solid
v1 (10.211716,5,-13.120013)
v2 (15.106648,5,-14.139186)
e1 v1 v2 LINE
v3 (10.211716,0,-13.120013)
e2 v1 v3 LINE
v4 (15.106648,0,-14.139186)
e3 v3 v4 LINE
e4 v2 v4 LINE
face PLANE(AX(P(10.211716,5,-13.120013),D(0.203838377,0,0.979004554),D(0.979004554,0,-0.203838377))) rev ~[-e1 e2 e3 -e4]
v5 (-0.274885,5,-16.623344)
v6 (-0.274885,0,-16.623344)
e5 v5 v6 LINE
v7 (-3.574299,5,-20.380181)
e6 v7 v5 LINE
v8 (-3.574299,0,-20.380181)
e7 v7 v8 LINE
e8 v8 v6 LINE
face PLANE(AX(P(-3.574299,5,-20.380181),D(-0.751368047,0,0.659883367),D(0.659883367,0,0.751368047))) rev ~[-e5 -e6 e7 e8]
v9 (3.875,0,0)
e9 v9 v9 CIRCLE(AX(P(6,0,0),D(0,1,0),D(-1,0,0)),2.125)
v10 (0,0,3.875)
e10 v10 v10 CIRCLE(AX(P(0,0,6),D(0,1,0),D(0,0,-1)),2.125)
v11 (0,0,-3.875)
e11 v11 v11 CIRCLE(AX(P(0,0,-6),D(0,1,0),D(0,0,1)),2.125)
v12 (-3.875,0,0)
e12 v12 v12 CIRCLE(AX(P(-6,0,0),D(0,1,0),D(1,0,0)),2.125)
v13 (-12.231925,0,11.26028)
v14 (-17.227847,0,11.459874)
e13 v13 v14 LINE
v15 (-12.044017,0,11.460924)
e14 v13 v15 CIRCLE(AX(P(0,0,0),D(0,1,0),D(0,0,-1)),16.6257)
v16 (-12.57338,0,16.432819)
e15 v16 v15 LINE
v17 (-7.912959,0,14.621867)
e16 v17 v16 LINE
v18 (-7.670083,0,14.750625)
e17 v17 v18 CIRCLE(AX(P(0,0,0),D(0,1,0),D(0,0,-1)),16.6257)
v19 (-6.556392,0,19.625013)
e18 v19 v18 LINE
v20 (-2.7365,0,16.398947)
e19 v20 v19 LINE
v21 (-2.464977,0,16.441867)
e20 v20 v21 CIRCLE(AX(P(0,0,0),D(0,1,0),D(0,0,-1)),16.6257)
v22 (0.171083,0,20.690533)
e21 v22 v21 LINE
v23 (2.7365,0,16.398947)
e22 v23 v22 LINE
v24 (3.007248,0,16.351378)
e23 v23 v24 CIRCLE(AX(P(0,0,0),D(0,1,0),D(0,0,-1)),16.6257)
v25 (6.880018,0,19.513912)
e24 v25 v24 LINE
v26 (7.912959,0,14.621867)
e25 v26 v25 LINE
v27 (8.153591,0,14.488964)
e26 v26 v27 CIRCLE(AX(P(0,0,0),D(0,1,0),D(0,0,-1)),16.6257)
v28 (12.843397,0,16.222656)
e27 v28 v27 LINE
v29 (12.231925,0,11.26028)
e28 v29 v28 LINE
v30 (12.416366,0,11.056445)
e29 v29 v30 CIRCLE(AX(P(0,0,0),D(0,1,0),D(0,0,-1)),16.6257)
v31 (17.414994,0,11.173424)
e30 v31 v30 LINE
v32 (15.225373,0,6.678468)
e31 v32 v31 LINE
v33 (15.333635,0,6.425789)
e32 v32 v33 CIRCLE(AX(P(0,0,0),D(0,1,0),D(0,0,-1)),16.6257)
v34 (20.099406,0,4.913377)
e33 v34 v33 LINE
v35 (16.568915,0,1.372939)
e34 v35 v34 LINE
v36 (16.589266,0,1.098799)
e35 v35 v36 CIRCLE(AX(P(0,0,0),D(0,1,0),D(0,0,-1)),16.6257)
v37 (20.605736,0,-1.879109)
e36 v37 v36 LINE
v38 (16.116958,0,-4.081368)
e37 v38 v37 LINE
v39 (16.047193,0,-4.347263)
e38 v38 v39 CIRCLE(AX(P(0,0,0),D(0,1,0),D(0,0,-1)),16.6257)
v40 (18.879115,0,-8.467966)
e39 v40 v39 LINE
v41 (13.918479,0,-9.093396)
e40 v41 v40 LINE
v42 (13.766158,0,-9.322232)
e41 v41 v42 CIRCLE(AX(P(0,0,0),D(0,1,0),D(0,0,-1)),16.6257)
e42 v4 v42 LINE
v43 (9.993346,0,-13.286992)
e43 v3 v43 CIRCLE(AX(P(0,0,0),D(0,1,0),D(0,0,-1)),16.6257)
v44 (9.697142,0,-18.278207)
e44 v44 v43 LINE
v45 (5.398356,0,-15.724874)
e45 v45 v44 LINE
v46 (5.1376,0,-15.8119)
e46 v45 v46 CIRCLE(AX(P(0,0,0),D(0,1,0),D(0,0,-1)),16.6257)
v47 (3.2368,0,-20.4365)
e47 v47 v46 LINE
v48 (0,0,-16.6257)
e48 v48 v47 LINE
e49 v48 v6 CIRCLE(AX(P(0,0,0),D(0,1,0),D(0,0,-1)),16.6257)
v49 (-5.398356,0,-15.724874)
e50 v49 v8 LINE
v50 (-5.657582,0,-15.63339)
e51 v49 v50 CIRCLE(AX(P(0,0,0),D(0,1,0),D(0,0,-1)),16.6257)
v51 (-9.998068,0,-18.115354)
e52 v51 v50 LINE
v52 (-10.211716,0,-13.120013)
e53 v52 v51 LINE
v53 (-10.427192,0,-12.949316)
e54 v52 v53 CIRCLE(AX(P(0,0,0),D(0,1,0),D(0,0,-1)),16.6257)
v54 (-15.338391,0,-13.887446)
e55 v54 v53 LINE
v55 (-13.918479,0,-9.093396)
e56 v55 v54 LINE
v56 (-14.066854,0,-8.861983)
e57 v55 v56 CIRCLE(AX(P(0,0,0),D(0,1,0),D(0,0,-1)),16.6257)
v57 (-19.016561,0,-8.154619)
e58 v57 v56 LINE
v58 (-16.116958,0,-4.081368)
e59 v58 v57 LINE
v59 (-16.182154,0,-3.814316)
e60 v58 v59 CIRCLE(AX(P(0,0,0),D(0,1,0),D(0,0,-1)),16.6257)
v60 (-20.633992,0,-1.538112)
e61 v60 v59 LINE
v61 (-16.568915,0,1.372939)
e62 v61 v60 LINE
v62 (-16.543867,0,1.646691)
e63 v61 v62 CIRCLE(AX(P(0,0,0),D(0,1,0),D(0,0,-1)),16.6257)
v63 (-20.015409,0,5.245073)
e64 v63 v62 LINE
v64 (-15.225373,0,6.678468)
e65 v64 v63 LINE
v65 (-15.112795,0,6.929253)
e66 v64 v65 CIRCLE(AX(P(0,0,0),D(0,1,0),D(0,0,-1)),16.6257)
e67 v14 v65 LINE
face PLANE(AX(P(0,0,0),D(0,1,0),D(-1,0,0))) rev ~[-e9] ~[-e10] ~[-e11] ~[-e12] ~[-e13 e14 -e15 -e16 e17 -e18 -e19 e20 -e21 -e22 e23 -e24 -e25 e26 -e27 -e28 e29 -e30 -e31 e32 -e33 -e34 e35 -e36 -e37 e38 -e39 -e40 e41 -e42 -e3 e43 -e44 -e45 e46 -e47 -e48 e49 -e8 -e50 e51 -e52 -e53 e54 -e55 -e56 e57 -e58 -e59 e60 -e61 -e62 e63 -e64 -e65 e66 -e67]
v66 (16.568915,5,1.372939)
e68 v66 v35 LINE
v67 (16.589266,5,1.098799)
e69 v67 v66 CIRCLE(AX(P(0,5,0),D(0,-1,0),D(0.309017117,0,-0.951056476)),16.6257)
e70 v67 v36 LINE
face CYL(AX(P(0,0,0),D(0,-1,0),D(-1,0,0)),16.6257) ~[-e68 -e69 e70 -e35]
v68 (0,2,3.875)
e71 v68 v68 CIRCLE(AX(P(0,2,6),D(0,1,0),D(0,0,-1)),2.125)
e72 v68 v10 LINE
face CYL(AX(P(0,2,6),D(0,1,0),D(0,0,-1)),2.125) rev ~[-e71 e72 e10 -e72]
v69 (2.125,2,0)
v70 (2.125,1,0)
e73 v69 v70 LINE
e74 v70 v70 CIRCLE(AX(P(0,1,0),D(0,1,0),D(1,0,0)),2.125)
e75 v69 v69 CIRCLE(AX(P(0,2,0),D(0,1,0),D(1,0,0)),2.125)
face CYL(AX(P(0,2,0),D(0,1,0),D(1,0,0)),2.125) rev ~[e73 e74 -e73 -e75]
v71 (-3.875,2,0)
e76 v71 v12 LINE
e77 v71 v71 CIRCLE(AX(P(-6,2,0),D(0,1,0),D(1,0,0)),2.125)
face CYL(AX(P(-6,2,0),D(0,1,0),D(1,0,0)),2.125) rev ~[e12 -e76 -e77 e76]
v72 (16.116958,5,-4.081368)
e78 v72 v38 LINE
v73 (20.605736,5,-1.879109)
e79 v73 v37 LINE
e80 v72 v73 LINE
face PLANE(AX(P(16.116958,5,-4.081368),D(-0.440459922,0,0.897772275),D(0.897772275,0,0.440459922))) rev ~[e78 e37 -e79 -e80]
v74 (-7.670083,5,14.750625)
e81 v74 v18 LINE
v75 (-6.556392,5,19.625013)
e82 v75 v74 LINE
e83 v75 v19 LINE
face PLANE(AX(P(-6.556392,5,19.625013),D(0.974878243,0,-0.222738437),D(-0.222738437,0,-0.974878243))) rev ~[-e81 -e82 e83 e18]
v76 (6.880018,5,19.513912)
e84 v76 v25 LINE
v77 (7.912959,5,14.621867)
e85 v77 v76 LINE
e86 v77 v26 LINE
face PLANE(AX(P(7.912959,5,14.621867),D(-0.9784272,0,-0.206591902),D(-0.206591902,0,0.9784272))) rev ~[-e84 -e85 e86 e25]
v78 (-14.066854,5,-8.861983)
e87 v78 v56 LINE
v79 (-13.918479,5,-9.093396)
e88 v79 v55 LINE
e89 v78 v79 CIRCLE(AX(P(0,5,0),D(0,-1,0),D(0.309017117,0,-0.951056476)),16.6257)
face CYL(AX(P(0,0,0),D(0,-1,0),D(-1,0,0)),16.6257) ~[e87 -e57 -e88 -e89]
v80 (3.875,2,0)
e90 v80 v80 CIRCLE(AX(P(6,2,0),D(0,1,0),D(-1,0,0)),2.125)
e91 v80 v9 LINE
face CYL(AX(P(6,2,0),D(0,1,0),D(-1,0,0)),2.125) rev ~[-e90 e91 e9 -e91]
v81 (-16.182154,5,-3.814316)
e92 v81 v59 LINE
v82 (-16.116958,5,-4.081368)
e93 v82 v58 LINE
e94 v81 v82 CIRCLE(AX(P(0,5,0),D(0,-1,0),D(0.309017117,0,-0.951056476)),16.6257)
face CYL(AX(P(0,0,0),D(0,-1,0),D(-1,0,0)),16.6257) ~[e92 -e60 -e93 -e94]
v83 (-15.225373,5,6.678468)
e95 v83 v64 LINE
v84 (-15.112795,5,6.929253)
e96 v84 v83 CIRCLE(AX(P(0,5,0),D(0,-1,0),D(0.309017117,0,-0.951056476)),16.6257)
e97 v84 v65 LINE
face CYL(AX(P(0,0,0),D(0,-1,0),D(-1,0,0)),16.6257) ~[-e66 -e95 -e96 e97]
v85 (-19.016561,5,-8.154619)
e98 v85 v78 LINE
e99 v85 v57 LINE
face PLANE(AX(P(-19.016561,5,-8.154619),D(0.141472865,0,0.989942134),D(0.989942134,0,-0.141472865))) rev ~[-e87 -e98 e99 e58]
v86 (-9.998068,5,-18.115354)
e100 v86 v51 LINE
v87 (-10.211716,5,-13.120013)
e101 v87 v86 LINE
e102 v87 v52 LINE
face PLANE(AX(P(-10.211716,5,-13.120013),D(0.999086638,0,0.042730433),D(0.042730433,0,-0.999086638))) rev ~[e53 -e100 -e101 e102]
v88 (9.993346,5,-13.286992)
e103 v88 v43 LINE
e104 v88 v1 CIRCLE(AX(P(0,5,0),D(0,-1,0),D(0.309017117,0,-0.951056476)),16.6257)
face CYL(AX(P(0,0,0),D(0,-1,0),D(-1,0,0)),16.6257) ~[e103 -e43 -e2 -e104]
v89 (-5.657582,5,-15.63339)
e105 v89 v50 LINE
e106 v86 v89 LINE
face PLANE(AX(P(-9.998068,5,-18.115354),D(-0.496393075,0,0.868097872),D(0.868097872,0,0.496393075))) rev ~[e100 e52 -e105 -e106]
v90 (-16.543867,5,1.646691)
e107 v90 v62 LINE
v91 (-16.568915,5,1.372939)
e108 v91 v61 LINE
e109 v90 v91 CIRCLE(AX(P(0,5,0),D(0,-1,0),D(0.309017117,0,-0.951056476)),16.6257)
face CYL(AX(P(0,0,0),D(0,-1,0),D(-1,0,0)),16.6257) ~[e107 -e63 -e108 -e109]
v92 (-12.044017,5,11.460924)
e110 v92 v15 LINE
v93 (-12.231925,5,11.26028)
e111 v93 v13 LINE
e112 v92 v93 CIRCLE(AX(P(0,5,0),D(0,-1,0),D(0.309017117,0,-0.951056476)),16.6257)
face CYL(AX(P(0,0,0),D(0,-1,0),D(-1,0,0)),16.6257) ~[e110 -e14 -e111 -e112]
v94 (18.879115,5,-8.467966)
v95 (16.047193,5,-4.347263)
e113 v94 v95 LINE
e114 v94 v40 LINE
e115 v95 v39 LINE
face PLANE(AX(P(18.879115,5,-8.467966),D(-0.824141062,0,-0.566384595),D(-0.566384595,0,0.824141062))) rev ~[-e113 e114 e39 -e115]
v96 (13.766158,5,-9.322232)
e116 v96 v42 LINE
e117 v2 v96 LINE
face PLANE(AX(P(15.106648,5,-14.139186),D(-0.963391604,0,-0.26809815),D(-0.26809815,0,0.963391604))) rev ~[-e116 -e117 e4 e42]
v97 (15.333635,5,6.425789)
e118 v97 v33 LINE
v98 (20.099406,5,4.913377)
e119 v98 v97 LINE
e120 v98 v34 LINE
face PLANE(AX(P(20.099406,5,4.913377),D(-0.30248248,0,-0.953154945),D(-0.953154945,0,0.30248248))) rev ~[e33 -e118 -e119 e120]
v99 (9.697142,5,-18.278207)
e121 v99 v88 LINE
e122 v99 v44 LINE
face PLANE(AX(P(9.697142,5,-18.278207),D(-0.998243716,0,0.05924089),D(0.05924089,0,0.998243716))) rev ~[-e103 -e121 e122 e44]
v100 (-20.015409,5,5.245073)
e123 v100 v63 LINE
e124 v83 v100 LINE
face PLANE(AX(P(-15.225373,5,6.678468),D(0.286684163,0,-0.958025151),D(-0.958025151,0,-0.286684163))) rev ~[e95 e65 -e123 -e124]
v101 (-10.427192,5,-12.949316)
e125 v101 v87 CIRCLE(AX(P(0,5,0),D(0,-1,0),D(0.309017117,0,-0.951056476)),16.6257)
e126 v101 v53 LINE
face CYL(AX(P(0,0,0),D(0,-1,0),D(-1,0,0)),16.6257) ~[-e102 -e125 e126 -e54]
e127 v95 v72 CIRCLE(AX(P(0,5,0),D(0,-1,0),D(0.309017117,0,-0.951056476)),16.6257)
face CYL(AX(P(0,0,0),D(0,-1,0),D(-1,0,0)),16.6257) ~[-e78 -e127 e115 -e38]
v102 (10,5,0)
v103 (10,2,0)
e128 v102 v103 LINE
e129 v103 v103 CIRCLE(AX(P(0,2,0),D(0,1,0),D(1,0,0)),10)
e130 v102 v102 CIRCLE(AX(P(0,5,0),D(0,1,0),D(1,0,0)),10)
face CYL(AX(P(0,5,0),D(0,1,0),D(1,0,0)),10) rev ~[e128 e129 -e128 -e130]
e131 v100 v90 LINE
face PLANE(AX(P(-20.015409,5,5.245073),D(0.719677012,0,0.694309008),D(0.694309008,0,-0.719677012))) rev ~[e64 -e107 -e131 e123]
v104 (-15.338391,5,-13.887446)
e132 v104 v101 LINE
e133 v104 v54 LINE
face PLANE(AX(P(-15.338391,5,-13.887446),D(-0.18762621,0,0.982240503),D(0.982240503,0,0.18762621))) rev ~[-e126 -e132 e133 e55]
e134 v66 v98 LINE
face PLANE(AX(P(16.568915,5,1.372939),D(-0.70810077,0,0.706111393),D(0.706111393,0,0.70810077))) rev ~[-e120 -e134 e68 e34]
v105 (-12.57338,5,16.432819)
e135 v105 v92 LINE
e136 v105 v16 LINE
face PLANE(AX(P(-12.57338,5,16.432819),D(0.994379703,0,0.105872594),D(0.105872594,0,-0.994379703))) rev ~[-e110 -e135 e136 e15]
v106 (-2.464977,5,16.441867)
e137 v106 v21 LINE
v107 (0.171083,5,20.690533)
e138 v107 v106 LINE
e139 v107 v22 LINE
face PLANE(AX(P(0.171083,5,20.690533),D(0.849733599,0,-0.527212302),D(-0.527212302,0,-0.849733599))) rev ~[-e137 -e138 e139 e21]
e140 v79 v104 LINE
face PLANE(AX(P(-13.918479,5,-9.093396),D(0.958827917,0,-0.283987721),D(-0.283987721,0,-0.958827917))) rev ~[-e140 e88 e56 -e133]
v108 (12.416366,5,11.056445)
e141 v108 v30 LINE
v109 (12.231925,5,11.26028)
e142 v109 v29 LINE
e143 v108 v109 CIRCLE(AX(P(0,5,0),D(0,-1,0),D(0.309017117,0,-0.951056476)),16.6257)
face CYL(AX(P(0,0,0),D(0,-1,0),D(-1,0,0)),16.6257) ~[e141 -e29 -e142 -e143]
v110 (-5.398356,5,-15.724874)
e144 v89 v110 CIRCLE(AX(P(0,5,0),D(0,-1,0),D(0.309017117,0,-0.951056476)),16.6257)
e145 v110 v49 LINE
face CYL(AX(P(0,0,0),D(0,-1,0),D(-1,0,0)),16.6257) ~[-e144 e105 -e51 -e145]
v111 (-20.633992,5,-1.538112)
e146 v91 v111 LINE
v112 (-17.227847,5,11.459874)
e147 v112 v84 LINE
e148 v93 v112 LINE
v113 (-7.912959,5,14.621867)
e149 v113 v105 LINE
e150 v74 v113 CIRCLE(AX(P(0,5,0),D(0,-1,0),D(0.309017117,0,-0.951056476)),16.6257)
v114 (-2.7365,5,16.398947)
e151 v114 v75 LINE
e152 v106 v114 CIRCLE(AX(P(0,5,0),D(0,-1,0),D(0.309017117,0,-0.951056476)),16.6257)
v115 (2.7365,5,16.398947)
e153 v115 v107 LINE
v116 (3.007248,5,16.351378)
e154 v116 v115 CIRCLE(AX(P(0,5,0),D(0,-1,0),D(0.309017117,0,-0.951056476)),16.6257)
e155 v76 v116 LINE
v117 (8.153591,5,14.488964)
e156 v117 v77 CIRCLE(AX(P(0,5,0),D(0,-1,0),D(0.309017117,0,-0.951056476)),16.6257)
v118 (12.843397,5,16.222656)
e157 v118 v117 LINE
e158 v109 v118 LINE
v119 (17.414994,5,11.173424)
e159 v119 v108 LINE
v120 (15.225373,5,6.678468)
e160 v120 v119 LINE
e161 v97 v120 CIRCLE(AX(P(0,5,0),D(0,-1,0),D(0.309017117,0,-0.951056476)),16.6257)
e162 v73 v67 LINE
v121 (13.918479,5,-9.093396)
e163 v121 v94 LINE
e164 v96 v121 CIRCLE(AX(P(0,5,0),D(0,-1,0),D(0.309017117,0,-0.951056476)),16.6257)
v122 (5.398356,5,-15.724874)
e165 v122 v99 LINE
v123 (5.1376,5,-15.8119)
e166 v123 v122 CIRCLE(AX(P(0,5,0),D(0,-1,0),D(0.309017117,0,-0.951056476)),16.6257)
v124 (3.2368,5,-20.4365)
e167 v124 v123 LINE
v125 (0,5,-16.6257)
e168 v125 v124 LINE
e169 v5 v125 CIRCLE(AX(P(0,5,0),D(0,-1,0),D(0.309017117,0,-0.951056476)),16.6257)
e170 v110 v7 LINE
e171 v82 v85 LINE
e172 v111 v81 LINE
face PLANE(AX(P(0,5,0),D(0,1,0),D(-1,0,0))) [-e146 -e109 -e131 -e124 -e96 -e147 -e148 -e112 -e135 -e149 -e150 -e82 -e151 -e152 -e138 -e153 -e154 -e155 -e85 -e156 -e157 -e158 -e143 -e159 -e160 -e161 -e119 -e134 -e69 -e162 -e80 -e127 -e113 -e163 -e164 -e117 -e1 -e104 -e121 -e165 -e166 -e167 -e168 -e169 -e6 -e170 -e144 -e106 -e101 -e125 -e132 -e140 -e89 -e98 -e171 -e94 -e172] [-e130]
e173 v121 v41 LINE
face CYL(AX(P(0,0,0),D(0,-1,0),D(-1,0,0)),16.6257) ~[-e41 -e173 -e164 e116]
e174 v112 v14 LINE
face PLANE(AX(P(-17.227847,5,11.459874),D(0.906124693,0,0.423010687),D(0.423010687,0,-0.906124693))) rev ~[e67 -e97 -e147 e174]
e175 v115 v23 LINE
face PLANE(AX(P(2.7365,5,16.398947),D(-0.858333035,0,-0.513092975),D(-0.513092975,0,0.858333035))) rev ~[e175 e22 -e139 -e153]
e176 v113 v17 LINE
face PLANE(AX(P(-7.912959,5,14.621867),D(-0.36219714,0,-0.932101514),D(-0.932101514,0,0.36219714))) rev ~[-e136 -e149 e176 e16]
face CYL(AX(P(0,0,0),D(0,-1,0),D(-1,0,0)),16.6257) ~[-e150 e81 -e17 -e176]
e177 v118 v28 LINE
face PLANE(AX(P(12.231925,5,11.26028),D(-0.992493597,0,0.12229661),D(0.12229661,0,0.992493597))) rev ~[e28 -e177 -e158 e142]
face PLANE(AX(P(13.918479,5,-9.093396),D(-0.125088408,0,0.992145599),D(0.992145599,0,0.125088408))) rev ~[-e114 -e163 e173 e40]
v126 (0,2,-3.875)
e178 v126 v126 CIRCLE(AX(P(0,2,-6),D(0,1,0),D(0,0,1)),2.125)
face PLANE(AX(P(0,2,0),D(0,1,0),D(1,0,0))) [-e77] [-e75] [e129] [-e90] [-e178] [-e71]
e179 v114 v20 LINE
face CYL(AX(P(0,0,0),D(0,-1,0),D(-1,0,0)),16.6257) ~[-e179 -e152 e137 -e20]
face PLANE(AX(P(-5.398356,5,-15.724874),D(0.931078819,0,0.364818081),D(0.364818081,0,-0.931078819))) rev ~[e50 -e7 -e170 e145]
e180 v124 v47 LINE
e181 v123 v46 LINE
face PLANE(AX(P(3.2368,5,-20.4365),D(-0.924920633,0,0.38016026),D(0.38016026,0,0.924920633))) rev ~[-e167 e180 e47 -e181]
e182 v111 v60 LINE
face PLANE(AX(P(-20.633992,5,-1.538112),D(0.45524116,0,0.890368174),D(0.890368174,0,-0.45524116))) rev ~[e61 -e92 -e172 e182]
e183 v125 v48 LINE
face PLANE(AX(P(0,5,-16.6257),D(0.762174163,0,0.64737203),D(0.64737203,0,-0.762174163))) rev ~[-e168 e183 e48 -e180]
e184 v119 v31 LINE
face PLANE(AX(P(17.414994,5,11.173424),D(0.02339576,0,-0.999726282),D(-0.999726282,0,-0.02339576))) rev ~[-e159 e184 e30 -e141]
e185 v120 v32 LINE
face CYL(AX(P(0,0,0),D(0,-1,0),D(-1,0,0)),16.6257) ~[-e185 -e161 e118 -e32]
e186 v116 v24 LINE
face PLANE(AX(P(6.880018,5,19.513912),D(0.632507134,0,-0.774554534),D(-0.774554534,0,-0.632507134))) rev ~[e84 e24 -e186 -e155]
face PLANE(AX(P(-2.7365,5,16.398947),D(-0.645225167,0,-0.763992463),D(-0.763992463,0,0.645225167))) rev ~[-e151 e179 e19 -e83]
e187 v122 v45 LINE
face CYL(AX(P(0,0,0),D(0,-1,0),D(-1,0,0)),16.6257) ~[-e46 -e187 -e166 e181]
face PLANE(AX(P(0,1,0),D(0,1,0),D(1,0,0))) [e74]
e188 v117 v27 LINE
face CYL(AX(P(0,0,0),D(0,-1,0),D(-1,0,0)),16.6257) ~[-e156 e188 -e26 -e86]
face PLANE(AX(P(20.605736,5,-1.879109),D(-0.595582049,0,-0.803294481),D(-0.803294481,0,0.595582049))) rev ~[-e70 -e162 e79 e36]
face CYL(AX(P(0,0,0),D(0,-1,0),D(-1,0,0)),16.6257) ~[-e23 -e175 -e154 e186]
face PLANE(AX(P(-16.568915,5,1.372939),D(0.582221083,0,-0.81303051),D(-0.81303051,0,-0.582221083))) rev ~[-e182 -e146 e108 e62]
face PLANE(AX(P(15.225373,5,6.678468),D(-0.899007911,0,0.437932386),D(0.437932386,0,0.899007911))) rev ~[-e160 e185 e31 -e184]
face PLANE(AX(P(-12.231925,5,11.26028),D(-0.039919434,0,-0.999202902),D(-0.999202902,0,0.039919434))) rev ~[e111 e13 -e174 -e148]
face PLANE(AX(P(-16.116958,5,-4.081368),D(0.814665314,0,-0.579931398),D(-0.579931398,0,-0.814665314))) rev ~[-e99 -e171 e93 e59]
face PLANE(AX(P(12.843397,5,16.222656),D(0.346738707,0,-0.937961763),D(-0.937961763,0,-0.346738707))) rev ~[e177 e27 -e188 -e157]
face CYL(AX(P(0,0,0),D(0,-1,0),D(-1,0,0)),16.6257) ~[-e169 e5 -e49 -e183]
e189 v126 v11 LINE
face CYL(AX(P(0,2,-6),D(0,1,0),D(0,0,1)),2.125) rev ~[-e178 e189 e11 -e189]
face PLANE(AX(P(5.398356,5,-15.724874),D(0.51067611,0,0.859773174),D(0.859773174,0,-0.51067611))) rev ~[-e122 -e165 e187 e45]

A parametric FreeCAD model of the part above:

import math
import FreeCAD as App
import Part
import Sketcher

V = App.Vector

doc = App.newDocument("Part")
body = doc.addObject("PartDesign::Body", "Body")

sketch1 = body.newObject("Sketcher::SketchObject", "Sketch")
sketch1.AttachmentSupport = (doc.getObject("XZ_Plane"), [""])
sketch1.MapMode = "FlatFace"
sketch1.addGeometry(Part.Circle(V(0, 0, 0), V(0, 0, 1), 16.6257), False)
sketch1.addConstraint([
    Sketcher.Constraint("Coincident", 0, 3, -1, 1),
    Sketcher.Constraint("Diameter", 0, 33.2514),
])
pad1 = body.newObject("PartDesign::Pad", "Pad")
pad1.Profile = sketch1
pad1.Length = 5
pad1.Reversed = True

sketch2 = body.newObject("Sketcher::SketchObject", "Sketch001")
sketch2.AttachmentSupport = (doc.getObject("XZ_Plane"), [""])
sketch2.MapMode = "FlatFace"
sketch2.AttachmentOffset = App.Placement(V(0, 0, -5), App.Rotation())
sketch2.addGeometry(Part.Circle(V(0, 0, 0), V(0, 0, 1), 10), False)
sketch2.addConstraint([
    Sketcher.Constraint("Coincident", 0, 3, -1, 1),
    Sketcher.Constraint("Diameter", 0, 20.0),
])
pocket1 = body.newObject("PartDesign::Pocket", "Pocket")
pocket1.Profile = sketch2
pocket1.Length = 3
pocket1.Reversed = True

sketch3 = body.newObject("Sketcher::SketchObject", "Sketch002")
sketch3.AttachmentSupport = (doc.getObject("XZ_Plane"), [""])
sketch3.MapMode = "FlatFace"
sketch3.AttachmentOffset = App.Placement(V(0, 0, -2), App.Rotation())
sketch3.addGeometry(Part.Circle(V(-6, 0, 0), V(0, 0, 1), 2.125), False)
sketch3.addConstraint([
    Sketcher.Constraint("PointOnObject", 0, 3, -1),
    Sketcher.Constraint("Diameter", 0, 4.25),
    Sketcher.Constraint("DistanceX", 0, 3, -1, 1, 6.0),
])
pocket2 = body.newObject("PartDesign::Pocket", "Pocket001")
pocket2.Profile = sketch3
pocket2.Type = "ThroughAll"
pocket2.Reversed = True
doc.recompute()

polarpattern = body.newObject("PartDesign::PolarPattern", "PolarPattern")
polarpattern.Originals = [pocket2]
polarpattern.Axis = (doc.getObject("Y_Axis"), [""])
polarpattern.Angle = 360
polarpattern.Occurrences = 4
body.Tip = polarpattern

sketch4 = body.newObject("Sketcher::SketchObject", "Sketch003")
sketch4.AttachmentSupport = (doc.getObject("XZ_Plane"), [""])
sketch4.MapMode = "FlatFace"
sketch4.AttachmentOffset = App.Placement(V(0, 0, -2), App.Rotation())
sketch4.addGeometry(Part.Circle(V(0, 0, 0), V(0, 0, 1), 2.125), False)
sketch4.addConstraint([
    Sketcher.Constraint("Coincident", 0, 3, -1, 1),
    Sketcher.Constraint("Diameter", 0, 4.25),
])
pocket3 = body.newObject("PartDesign::Pocket", "Pocket002")
pocket3.Profile = sketch4
pocket3.Length = 1
pocket3.Reversed = True

sketch5 = body.newObject("Sketcher::SketchObject", "Sketch004")
sketch5.AttachmentSupport = (doc.getObject("XZ_Plane"), [""])
sketch5.MapMode = "FlatFace"
sketch5.AttachmentOffset = App.Placement(V(0, 0, -5), App.Rotation())
sketch5.addGeometry([
    Part.LineSegment(V(5.1376, -15.8119, 0), V(3.2368, -20.4365, 0)),
    Part.LineSegment(V(3.2368, -20.4365, 0), V(0, -16.6257, 0)),
    Part.ArcOfCircle(Part.Circle(V(0, 0, 0), V(0, 0, 1), 16.6257), math.radians(-90), math.radians(-71.999993)),
], False)
sketch5.addConstraint([
    Sketcher.Constraint("Coincident", 0, 2, 1, 1),
    Sketcher.Constraint("Coincident", 1, 2, 2, 1),
    Sketcher.Constraint("Coincident", 2, 2, 0, 1),
    Sketcher.Constraint("Coincident", 2, 3, -1, 1),
    Sketcher.Constraint("PointOnObject", 1, 2, -2),
    Sketcher.Constraint("Equal", 0, 1),
    Sketcher.Constraint("Distance", 0, 5.0),
    Sketcher.Constraint("Radius", 2, 16.6257),
    Sketcher.Constraint("DistanceY", 2, 2, -1, 1, 15.812),
])
pad2 = body.newObject("PartDesign::Pad", "Pad001")
pad2.Profile = sketch5
pad2.Length = 5
doc.recompute()

polarpattern2 = body.newObject("PartDesign::PolarPattern", "PolarPattern001")
polarpattern2.Originals = [pad2]
polarpattern2.Axis = (doc.getObject("Y_Axis"), [""])
polarpattern2.Angle = 360
polarpattern2.Occurrences = 19
body.Tip = polarpattern2

doc.recompute()
